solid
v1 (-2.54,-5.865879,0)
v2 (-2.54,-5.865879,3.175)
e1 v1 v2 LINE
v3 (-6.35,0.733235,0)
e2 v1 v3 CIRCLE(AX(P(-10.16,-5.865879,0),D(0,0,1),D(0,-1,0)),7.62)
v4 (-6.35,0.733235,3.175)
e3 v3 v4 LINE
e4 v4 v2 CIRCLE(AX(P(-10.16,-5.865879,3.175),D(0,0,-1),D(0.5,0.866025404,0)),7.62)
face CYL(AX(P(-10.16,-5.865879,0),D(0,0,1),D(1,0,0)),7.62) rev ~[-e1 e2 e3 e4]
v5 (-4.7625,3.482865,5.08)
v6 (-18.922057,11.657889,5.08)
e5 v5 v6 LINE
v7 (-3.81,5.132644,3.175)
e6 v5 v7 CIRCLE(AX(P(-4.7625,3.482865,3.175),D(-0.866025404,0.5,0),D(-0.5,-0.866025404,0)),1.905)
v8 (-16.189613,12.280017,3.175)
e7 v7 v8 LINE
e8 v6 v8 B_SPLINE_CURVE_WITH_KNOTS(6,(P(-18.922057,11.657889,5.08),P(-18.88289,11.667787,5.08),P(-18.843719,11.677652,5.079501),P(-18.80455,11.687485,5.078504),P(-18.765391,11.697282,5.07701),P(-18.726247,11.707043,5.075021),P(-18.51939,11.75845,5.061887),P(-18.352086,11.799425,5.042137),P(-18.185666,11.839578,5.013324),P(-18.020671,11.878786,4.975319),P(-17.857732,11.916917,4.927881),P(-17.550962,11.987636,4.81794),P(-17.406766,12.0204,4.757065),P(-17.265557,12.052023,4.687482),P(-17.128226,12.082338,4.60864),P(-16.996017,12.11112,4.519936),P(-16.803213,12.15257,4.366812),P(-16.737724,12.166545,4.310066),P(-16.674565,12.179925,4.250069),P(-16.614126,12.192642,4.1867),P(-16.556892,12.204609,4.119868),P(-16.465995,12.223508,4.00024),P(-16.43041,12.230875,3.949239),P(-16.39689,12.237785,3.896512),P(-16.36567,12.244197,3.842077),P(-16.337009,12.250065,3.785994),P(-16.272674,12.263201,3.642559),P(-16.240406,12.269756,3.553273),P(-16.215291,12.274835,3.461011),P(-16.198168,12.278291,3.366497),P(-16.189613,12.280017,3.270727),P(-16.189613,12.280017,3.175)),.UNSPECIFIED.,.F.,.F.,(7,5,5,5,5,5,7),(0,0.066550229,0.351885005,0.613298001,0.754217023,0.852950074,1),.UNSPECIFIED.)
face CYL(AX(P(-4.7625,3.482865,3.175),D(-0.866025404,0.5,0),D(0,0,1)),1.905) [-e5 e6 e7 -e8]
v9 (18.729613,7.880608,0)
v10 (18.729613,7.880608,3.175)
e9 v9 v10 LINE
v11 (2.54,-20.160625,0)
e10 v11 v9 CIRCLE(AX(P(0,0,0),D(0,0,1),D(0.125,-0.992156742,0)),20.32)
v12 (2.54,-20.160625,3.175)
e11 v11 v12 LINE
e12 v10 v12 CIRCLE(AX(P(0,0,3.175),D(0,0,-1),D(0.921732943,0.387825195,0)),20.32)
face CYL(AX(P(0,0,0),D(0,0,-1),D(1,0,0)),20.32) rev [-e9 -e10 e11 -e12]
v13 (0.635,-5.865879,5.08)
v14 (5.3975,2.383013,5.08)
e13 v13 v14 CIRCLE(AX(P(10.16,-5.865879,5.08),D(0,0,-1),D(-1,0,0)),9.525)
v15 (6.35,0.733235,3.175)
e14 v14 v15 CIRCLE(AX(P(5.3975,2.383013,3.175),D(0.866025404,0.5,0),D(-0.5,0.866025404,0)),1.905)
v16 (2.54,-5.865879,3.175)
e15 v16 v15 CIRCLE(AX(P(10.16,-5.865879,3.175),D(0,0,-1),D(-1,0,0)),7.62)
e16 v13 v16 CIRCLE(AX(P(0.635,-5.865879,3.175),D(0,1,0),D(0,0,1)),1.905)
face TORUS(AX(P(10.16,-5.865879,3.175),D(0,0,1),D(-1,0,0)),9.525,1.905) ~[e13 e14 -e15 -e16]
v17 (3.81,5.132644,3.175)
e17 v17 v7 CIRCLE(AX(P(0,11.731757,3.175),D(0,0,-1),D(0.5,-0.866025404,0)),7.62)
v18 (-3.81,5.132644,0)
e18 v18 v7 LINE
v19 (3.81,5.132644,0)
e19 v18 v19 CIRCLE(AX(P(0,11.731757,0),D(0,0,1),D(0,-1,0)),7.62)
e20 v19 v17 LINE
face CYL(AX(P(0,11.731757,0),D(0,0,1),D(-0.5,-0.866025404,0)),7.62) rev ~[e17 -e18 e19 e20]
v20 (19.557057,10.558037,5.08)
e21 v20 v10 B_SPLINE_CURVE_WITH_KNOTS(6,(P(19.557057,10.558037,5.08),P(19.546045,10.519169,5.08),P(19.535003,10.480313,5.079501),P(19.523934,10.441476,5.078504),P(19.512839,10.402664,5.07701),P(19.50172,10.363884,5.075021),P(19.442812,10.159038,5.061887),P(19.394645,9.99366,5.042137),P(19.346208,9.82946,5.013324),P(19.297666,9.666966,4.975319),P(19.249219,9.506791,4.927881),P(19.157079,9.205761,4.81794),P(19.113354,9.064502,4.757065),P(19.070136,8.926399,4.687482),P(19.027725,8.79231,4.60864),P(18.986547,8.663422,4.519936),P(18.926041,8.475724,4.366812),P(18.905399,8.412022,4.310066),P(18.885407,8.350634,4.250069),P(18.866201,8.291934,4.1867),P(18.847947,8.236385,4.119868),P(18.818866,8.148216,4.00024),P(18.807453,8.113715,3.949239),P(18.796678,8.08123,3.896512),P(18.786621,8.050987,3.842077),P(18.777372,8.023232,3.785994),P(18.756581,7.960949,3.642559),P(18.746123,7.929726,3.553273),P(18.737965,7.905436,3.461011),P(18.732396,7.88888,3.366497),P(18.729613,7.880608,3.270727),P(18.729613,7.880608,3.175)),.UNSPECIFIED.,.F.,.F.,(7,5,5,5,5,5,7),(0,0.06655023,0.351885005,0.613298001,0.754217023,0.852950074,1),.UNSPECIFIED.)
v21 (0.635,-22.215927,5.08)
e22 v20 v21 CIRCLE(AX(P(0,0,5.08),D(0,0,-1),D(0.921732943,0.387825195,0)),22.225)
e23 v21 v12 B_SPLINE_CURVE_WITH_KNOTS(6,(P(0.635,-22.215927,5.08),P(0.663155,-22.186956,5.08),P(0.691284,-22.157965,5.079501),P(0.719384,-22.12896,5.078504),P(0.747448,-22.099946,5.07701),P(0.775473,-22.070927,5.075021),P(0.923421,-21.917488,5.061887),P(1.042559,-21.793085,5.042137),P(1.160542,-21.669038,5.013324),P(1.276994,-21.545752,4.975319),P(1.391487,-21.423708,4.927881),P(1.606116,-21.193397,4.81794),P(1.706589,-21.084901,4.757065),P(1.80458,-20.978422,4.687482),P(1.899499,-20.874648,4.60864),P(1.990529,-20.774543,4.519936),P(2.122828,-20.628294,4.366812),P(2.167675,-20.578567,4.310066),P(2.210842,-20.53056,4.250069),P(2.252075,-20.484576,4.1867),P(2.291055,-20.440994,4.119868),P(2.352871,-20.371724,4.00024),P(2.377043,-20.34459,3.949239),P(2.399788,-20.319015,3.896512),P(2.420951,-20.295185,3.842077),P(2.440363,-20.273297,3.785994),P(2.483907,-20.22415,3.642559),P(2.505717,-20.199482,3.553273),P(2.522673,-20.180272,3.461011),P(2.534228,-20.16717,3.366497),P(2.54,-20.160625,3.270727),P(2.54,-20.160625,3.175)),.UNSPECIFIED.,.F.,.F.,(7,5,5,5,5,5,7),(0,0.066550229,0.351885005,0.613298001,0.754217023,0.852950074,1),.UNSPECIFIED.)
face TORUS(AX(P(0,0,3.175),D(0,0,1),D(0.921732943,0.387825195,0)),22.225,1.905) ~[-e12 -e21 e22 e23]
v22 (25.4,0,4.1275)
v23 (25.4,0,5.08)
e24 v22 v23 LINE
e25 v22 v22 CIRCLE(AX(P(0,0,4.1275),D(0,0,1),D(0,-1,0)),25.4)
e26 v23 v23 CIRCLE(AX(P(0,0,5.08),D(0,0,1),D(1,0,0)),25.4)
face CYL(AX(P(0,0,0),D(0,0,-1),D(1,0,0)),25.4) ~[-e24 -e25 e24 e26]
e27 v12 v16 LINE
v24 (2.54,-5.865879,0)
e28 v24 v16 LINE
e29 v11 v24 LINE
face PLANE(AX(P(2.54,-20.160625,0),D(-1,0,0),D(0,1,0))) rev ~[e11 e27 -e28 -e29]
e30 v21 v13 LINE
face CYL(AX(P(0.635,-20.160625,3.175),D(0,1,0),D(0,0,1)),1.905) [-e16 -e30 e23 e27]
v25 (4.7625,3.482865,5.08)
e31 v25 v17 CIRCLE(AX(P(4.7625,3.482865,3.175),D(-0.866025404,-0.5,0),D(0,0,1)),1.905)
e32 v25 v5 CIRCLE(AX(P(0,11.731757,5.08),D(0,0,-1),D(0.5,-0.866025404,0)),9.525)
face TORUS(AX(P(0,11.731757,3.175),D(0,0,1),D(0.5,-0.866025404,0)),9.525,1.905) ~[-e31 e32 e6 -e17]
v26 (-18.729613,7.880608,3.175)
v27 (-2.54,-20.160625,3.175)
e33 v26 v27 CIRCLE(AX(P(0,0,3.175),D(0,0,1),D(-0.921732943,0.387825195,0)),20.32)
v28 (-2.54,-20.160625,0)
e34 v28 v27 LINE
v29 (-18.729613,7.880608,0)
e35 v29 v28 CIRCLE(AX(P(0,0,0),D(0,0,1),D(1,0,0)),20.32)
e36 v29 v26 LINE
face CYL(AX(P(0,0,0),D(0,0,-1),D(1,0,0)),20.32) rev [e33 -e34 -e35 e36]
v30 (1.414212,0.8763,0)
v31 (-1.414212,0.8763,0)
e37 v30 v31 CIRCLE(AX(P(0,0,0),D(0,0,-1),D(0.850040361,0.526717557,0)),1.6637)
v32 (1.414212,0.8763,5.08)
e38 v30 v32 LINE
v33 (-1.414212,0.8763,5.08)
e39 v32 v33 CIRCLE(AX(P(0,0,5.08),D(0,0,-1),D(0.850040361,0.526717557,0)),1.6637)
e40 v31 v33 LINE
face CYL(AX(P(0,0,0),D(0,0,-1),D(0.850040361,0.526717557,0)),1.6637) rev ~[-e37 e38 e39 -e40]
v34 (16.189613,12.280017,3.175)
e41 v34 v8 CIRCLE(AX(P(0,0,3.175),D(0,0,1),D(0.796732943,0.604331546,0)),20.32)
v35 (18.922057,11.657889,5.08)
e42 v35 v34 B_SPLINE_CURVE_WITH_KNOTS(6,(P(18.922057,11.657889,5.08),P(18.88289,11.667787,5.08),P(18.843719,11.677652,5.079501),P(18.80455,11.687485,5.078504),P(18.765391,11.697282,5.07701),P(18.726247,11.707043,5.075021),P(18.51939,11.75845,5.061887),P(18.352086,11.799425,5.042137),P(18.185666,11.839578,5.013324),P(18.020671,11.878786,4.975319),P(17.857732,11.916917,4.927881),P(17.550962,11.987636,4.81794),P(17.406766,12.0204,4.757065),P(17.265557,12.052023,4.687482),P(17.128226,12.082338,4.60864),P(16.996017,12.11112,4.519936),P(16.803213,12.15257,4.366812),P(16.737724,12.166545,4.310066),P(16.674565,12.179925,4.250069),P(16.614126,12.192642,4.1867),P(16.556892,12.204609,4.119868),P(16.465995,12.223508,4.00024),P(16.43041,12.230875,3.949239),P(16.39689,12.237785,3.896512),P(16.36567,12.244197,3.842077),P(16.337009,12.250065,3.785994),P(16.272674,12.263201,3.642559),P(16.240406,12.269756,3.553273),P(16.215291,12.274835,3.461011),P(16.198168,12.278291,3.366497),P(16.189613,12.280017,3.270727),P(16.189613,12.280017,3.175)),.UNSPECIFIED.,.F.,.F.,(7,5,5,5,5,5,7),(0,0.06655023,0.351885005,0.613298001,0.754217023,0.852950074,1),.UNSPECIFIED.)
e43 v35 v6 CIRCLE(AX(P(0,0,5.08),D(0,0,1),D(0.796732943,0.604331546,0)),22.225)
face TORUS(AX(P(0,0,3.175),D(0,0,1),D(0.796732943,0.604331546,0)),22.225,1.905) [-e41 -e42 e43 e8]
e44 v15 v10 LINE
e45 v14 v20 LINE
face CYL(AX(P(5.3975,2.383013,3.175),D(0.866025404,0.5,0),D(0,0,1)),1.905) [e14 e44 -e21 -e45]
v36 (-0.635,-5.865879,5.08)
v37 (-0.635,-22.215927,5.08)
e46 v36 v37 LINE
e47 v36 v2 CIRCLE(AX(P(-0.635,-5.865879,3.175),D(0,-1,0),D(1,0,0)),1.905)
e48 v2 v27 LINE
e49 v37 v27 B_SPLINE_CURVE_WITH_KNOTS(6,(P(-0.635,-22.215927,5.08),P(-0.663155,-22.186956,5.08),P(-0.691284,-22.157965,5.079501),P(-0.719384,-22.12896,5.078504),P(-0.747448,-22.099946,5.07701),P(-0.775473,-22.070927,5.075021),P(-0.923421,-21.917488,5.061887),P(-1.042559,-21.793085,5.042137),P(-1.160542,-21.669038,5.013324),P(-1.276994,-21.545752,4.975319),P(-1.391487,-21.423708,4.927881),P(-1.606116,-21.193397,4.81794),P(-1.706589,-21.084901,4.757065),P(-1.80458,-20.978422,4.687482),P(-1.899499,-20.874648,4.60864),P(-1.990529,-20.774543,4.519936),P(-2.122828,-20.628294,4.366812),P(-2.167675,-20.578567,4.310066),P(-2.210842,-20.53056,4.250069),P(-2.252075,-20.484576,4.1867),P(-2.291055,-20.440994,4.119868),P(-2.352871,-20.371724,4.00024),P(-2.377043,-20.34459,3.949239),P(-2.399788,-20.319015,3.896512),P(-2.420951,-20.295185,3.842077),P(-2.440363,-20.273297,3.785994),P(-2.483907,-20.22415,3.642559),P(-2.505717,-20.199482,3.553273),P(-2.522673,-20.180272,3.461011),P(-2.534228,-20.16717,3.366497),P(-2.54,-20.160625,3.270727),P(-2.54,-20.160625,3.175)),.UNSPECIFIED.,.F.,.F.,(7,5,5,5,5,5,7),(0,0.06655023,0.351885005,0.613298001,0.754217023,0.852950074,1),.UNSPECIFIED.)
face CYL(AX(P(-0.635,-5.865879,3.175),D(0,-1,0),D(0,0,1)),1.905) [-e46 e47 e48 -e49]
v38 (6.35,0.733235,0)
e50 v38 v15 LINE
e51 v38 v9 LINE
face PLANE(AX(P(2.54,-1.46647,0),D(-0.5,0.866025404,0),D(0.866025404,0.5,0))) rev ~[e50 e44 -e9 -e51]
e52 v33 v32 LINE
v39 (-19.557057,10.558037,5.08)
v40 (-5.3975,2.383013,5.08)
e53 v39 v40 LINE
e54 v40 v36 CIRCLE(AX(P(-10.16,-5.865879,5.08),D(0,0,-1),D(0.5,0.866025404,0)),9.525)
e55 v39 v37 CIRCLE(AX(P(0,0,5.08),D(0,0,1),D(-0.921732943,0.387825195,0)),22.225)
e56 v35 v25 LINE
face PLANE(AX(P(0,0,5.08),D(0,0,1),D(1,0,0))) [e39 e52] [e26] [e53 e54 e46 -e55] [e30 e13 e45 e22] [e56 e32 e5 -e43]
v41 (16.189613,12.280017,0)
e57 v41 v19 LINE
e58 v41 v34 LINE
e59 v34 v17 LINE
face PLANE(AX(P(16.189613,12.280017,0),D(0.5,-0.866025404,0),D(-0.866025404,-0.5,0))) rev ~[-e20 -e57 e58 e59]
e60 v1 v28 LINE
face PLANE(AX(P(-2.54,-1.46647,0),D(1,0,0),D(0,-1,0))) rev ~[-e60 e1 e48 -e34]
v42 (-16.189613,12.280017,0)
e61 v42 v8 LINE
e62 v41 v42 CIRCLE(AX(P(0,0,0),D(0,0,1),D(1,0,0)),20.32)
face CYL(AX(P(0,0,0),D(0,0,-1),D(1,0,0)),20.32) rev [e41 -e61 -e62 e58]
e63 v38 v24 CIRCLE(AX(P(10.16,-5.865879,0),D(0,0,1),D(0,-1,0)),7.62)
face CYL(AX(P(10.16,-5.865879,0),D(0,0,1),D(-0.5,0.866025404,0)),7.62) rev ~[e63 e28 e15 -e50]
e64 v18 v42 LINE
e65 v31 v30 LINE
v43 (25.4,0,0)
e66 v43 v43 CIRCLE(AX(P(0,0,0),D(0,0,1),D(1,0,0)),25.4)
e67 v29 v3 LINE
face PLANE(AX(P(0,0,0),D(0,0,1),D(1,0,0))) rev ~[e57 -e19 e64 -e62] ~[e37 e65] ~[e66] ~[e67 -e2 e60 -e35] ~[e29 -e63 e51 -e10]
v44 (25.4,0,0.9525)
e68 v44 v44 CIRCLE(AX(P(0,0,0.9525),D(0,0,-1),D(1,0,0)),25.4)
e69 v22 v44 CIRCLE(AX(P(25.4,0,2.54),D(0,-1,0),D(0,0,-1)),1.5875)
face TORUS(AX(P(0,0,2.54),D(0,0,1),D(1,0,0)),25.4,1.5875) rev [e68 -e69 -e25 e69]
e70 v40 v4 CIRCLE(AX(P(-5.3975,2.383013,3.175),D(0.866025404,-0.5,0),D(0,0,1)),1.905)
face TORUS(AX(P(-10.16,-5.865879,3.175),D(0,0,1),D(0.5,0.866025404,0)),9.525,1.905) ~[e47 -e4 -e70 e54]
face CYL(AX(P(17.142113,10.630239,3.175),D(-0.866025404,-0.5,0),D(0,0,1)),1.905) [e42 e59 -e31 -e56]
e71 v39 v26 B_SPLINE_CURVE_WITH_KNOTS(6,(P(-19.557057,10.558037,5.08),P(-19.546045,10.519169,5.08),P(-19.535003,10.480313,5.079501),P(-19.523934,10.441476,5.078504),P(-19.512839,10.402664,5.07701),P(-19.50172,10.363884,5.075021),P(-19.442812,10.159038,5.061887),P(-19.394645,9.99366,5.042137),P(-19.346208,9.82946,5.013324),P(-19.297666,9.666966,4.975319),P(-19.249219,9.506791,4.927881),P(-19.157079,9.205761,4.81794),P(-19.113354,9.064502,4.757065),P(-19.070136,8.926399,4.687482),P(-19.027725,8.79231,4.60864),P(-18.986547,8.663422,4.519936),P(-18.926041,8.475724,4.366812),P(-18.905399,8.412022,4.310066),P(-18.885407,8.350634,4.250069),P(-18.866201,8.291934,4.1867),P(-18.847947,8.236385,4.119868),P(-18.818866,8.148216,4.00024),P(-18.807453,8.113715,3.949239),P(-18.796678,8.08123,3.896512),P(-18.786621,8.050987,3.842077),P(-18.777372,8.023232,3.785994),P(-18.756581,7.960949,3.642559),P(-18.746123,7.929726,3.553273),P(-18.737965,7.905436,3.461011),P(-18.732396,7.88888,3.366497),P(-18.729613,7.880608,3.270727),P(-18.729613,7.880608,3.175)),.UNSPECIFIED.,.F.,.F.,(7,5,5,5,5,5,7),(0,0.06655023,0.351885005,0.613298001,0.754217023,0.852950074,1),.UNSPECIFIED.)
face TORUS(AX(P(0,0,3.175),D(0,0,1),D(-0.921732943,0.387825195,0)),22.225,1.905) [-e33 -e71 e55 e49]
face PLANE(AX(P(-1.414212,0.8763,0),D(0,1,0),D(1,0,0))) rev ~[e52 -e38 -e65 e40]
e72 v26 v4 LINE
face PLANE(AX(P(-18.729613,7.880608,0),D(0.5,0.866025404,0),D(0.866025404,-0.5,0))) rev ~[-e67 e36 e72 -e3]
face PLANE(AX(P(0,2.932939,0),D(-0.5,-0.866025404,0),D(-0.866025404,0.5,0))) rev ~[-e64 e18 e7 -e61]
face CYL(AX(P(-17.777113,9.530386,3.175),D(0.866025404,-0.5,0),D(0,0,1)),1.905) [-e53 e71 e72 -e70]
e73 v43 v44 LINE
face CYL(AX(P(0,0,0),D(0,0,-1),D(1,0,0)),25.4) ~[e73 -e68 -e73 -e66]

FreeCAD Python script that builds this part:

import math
import FreeCAD as App
import Part
import Sketcher
from FreeCAD import Vector
Q = App.Units.Quantity


def edges_at(feature, points):
    """Names of the edges that pass closest to the given points."""
    edges = feature.Shape.Edges
    near = lambda p: min(range(len(edges)), key=lambda i: edges[i].distToShape(Part.Vertex(*p))[0])
    return sorted({f"Edge{near(p) + 1}" for p in points})

doc = App.newDocument("Part")
body = doc.addObject("PartDesign::Body", "Body")

# Sketch on XY plane
sketch1 = body.newObject("Sketcher::SketchObject", "Sketch")
sketch1.AttachmentSupport = (doc.getObject("XY_Plane"), [""])
sketch1.MapMode = "FlatFace"
sketch1.addGeometry(Part.Circle(Vector(0, 0, 0), Vector(0, 0, 1), 25.4), False)
sketch1.addGeometry(Part.ArcOfCircle(Part.Circle(Vector(0, 0, 0), Vector(0, 0, 1), 20.3), math.radians(-83), math.radians(23)), False)
sketch1.addGeometry(Part.LineSegment(Vector(2.5, -20.2, 0), Vector(2.5, -1.5, 0)), False)
sketch1.addGeometry(Part.LineSegment(Vector(2.5, -1.5, 0), Vector(18.7, 7.9, 0)), False)
sketch1.addGeometry(Part.ArcOfCircle(Part.Circle(Vector(0, 0, 0), Vector(0, 0, 1), 20.3), math.radians(37), math.radians(143)), False)
sketch1.addGeometry(Part.LineSegment(Vector(16.2, 12.3, 0), Vector(0, 2.9, 0)), False)
sketch1.addGeometry(Part.LineSegment(Vector(0, 2.9, 0), Vector(-16.2, 12.3, 0)), False)
sketch1.addGeometry(Part.ArcOfCircle(Part.Circle(Vector(0, 0, 0), Vector(0, 0, 1), 20.3), math.radians(157), math.radians(263)), False)
sketch1.addGeometry(Part.LineSegment(Vector(-18.7, 7.9, 0), Vector(-2.5, -1.5, 0)), False)
sketch1.addGeometry(Part.LineSegment(Vector(-2.5, -1.5, 0), Vector(-2.5, -20.2, 0)), False)
sketch1.addGeometry(Part.ArcOfCircle(Part.Circle(Vector(0, 0, 0), Vector(0, 0, 1), 1.7), math.radians(148), math.radians(392)), False)
sketch1.addGeometry(Part.LineSegment(Vector(-1.4, 0.9, 0), Vector(1.4, 0.9, 0)), False)
sketch1.addConstraint(Sketcher.Constraint("Coincident", 1, 1, 2, 1))
sketch1.addConstraint(Sketcher.Constraint("Coincident", 2, 2, 3, 1))
sketch1.addConstraint(Sketcher.Constraint("Coincident", 3, 2, 1, 2))
sketch1.addConstraint(Sketcher.Constraint("Coincident", 4, 1, 5, 1))
sketch1.addConstraint(Sketcher.Constraint("Coincident", 5, 2, 6, 1))
sketch1.addConstraint(Sketcher.Constraint("Coincident", 6, 2, 4, 2))
sketch1.addConstraint(Sketcher.Constraint("Coincident", 7, 1, 8, 1))
sketch1.addConstraint(Sketcher.Constraint("Coincident", 8, 2, 9, 1))
sketch1.addConstraint(Sketcher.Constraint("Coincident", 9, 2, 7, 2))
sketch1.addConstraint(Sketcher.Constraint("Coincident", 10, 1, 11, 1))
sketch1.addConstraint(Sketcher.Constraint("Coincident", 11, 2, 10, 2))
sketch1.addConstraint(Sketcher.Constraint("Vertical", 2))
sketch1.addConstraint(Sketcher.Constraint("Vertical", 9))
sketch1.addConstraint(Sketcher.Constraint("Horizontal", 11))
sketch1.addConstraint(Sketcher.Constraint("Coincident", 0, 3, -1, 1))
sketch1.addConstraint(Sketcher.Constraint("Coincident", 1, 3, -1, 1))
sketch1.addConstraint(Sketcher.Constraint("Coincident", 4, 3, -1, 1))
sketch1.addConstraint(Sketcher.Constraint("Coincident", 7, 3, -1, 1))
sketch1.addConstraint(Sketcher.Constraint("Coincident", 10, 3, -1, 1))
sketch1.addConstraint(Sketcher.Constraint("Equal", 1, 4))
sketch1.addConstraint(Sketcher.Constraint("Equal", 4, 7))
sketch1.addConstraint(Sketcher.Constraint("Symmetric", 2, 2, 8, 2, -2))
sketch1.addConstraint(Sketcher.Constraint("PointOnObject", 5, 2, -2))
sketch1.addConstraint(Sketcher.Constraint("Parallel", 3, 5))
sketch1.addConstraint(Sketcher.Constraint("Parallel", 6, 8))
sketch1.addConstraint(Sketcher.Constraint("Horizontal", 4, 1, 6, 2))
sketch1.addConstraint(Sketcher.Constraint("Equal", 3, 5))
sketch1.addConstraint(Sketcher.Constraint("Diameter", 0, Q("2 in")))
sketch1.addConstraint(Sketcher.Constraint("Radius", 1, Q("0.8 in")))
sketch1.addConstraint(Sketcher.Constraint("Angle", 3, Q("30 deg")))
sketch1.addConstraint(Sketcher.Constraint("DistanceX", -1, 1, 1, 1, Q("0.1 in")))
sketch1.addConstraint(Sketcher.Constraint("Radius", 10, Q("0.0655 in")))
sketch1.addConstraint(Sketcher.Constraint("DistanceY", -1, 1, 10, 1, Q("0.0345 in")))
sketch1.addConstraint(Sketcher.Constraint("DistanceY", 2, 1, 2, 2, 18.694155))
pad1 = body.newObject("PartDesign::Pad", "Pad")
pad1.Profile = sketch1
pad1.Length = Q("0.2 in")
doc.recompute()

fillet = body.newObject("PartDesign::Fillet", "Fillet")
fillet.Base = (pad1, edges_at(pad1, [(2.54, -1.466, 2.54), (-2.54, -1.466, 2.54), (0, 2.933, 2.54)]))
fillet.Radius = Q("0.3 in")
doc.recompute()

fillet2 = body.newObject("PartDesign::Fillet", "Fillet001")
fillet2.Base = (fillet, edges_at(fillet, [
    (-17.598, -10.16, 5.08),
    (17.598, -10.16, 5.08),
    (-10, 8.706, 5.08),
    (10, 8.706, 5.08),
    (12.54, 4.307, 5.08),
    (2.54, -13.013, 5.08),
    (-2.54, -13.013, 5.08),
    (-12.54, 4.307, 5.08),
    (0, 4.112, 5.08),
    (3.561, -2.056, 5.08),
    (-3.561, -2.056, 5.08),
    (0, 20.32, 5.08),
]))
fillet2.Radius = Q("0.075 in")

# Sketch on YZ plane
sketch2 = body.newObject("Sketcher::SketchObject", "Sketch001")
sketch2.AttachmentSupport = (doc.getObject("YZ_Plane"), [""])
sketch2.MapMode = "FlatFace"
sketch2.addGeometry(Part.Circle(Vector(25.4, 2.5, 0), Vector(0, 0, 1), 1.6), False)
sketch2.addConstraint(Sketcher.Constraint("Diameter", 0, Q("0.125 in")))
sketch2.addConstraint(Sketcher.Constraint("DistanceX", -1, 1, 0, 3, Q("1 in")))
sketch2.addConstraint(Sketcher.Constraint("DistanceY", -1, 1, 0, 3, Q("0.1 in")))
groove = body.newObject("PartDesign::Groove", "Groove")
groove.Profile = sketch2
groove.ReferenceAxis = (sketch2, ["V_Axis"])
groove.Angle = 360

doc.recompute()
